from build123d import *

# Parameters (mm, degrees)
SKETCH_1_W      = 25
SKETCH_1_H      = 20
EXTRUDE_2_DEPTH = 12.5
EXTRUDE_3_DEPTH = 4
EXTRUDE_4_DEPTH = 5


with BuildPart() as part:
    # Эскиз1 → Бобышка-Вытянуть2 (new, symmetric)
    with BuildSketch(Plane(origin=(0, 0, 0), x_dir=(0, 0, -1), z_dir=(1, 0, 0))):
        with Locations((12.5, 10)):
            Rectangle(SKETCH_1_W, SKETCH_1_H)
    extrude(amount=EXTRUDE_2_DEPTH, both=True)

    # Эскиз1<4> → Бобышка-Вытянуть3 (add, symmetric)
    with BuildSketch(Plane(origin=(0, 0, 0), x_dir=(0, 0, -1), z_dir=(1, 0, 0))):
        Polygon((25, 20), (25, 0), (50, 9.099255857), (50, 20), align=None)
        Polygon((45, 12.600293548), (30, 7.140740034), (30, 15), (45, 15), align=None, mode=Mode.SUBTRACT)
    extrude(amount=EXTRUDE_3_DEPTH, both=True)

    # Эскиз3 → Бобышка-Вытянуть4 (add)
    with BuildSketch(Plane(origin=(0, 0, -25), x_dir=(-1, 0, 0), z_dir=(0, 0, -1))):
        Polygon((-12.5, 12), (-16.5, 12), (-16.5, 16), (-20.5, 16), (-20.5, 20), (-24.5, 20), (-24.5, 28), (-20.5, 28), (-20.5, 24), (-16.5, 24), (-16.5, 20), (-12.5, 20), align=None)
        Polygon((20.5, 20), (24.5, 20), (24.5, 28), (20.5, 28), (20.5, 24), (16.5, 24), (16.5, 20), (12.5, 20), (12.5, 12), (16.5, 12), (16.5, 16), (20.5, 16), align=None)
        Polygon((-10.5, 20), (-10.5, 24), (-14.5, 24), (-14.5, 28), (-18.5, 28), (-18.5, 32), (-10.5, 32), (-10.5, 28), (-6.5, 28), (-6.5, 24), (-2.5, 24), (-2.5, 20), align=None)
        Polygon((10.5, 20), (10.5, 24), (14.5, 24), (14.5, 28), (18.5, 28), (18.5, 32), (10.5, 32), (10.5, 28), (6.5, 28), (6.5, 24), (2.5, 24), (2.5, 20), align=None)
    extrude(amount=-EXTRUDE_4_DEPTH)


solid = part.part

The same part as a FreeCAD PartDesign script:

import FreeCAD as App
import Part
import Sketcher
from FreeCAD import Vector
Q = App.Units.Quantity

doc = App.newDocument("Part")
body = doc.addObject("PartDesign::Body", "Body")

# Sketch on YZ plane
sketch1 = body.newObject("Sketcher::SketchObject", "Sketch")
sketch1.AttachmentSupport = (doc.getObject("YZ_Plane"), [""])
sketch1.MapMode = "FlatFace"
sketch1.addGeometry(Part.LineSegment(Vector(20, 0, 0), Vector(0, 0, 0)), False)
sketch1.addGeometry(Part.LineSegment(Vector(0, 0, 0), Vector(0, -25, 0)), False)
sketch1.addGeometry(Part.LineSegment(Vector(0, -25, 0), Vector(20, -25, 0)), False)
sketch1.addGeometry(Part.LineSegment(Vector(20, -25, 0), Vector(20, 0, 0)), False)
sketch1.addConstraint(Sketcher.Constraint("Coincident", 0, 2, 1, 1))
sketch1.addConstraint(Sketcher.Constraint("Coincident", 1, 2, 2, 1))
sketch1.addConstraint(Sketcher.Constraint("Coincident", 2, 2, 3, 1))
sketch1.addConstraint(Sketcher.Constraint("Coincident", 3, 2, 0, 1))
sketch1.addConstraint(Sketcher.Constraint("Horizontal", 0))
sketch1.addConstraint(Sketcher.Constraint("Vertical", 1))
sketch1.addConstraint(Sketcher.Constraint("Horizontal", 2))
sketch1.addConstraint(Sketcher.Constraint("Vertical", 3))
sketch1.addConstraint(Sketcher.Constraint("Coincident", 0, 2, -1, 1))
sketch1.addConstraint(Sketcher.Constraint("DistanceX", 0, 2, 0, 1, Q("20 mm")))
sketch1.addConstraint(Sketcher.Constraint("DistanceY", 1, 2, 1, 1, Q("25 mm")))
pad1 = body.newObject("PartDesign::Pad", "Pad")
pad1.Profile = sketch1
pad1.Length = 25
pad1.Midplane = True

# Sketch on YZ plane
sketch2 = body.newObject("Sketcher::SketchObject", "Sketch001")
sketch2.AttachmentSupport = (doc.getObject("YZ_Plane"), [""])
sketch2.MapMode = "FlatFace"
sketch2.addGeometry(Part.LineSegment(Vector(20, -25, 0), Vector(0, -25, 0)), False)
sketch2.addGeometry(Part.LineSegment(Vector(0, -25, 0), Vector(9.099256, -50, 0)), False)
sketch2.addGeometry(Part.LineSegment(Vector(9.099256, -50, 0), Vector(20, -50, 0)), False)
sketch2.addGeometry(Part.LineSegment(Vector(20, -50, 0), Vector(20, -25, 0)), False)
sketch2.addGeometry(Part.LineSegment(Vector(15, -45, 0), Vector(12.600294, -45, 0)), False)
sketch2.addGeometry(Part.LineSegment(Vector(12.600294, -45, 0), Vector(7.14074, -30, 0)), False)
sketch2.addGeometry(Part.LineSegment(Vector(7.14074, -30, 0), Vector(15, -30, 0)), False)
sketch2.addGeometry(Part.LineSegment(Vector(15, -30, 0), Vector(15, -45, 0)), False)
sketch2.addConstraint(Sketcher.Constraint("Coincident", 0, 2, 1, 1))
sketch2.addConstraint(Sketcher.Constraint("Coincident", 1, 2, 2, 1))
sketch2.addConstraint(Sketcher.Constraint("Coincident", 2, 2, 3, 1))
sketch2.addConstraint(Sketcher.Constraint("Coincident", 3, 2, 0, 1))
sketch2.addConstraint(Sketcher.Constraint("Coincident", 4, 2, 5, 1))
sketch2.addConstraint(Sketcher.Constraint("Coincident", 5, 2, 6, 1))
sketch2.addConstraint(Sketcher.Constraint("Coincident", 6, 2, 7, 1))
sketch2.addConstraint(Sketcher.Constraint("Coincident", 7, 2, 4, 1))
sketch2.addConstraint(Sketcher.Constraint("Horizontal", 0))
sketch2.addConstraint(Sketcher.Constraint("Horizontal", 2))
sketch2.addConstraint(Sketcher.Constraint("Vertical", 3))
sketch2.addConstraint(Sketcher.Constraint("Horizontal", 4))
sketch2.addConstraint(Sketcher.Constraint("Horizontal", 6))
sketch2.addConstraint(Sketcher.Constraint("Vertical", 7))
sketch2.addConstraint(Sketcher.Constraint("PointOnObject", 0, 2, -2))
sketch2.addConstraint(Sketcher.Constraint("Parallel", 1, 5))
sketch2.addConstraint(Sketcher.Constraint("DistanceX", 0, 2, 0, 1, Q("20 mm")))
sketch2.addConstraint(Sketcher.Constraint("DistanceY", 3, 1, 3, 2, Q("25 mm")))
sketch2.addConstraint(Sketcher.Constraint("DistanceY", 7, 2, 7, 1, Q("15 mm")))
sketch2.addConstraint(Sketcher.Constraint("Angle", 1, Q("-70 deg")))
sketch2.addConstraint(Sketcher.Constraint("DistanceY", 0, 2, -1, 1, Q("25 mm")))
sketch2.addConstraint(Sketcher.Constraint("DistanceY", 4, 2, -1, 1, Q("45 mm")))
sketch2.addConstraint(Sketcher.Constraint("DistanceX", -1, 1, 6, 2, Q("15 mm")))
sketch2.addConstraint(Sketcher.Constraint("DistanceX", 6, 1, 6, 2, Q("7.85926 mm")))
pad2 = body.newObject("PartDesign::Pad", "Pad001")
pad2.Profile = sketch2
pad2.Length = 8
pad2.Midplane = True

# Sketch on XY plane
sketch3 = body.newObject("Sketcher::SketchObject", "Sketch002")
sketch3.AttachmentSupport = (doc.getObject("XY_Plane"), [""])
sketch3.MapMode = "FlatFace"
sketch3.AttachmentOffset = App.Placement(Vector(0, 0, -25), App.Rotation())
sketch3.addGeometry(Part.LineSegment(Vector(16.5, 12, 0), Vector(12.5, 12, 0)), False)
sketch3.addGeometry(Part.LineSegment(Vector(12.5, 12, 0), Vector(12.5, 20, 0)), False)
sketch3.addGeometry(Part.LineSegment(Vector(12.5, 20, 0), Vector(16.5, 20, 0)), False)
sketch3.addGeometry(Part.LineSegment(Vector(16.5, 20, 0), Vector(16.5, 24, 0)), False)
sketch3.addGeometry(Part.LineSegment(Vector(16.5, 24, 0), Vector(20.5, 24, 0)), False)
sketch3.addGeometry(Part.LineSegment(Vector(20.5, 24, 0), Vector(20.5, 28, 0)), False)
sketch3.addGeometry(Part.LineSegment(Vector(20.5, 28, 0), Vector(24.5, 28, 0)), False)
sketch3.addGeometry(Part.LineSegment(Vector(24.5, 28, 0), Vector(24.5, 20, 0)), False)
sketch3.addGeometry(Part.LineSegment(Vector(24.5, 20, 0), Vector(20.5, 20, 0)), False)
sketch3.addGeometry(Part.LineSegment(Vector(20.5, 20, 0), Vector(20.5, 16, 0)), False)
sketch3.addGeometry(Part.LineSegment(Vector(20.5, 16, 0), Vector(16.5, 16, 0)), False)
sketch3.addGeometry(Part.LineSegment(Vector(16.5, 16, 0), Vector(16.5, 12, 0)), False)
sketch3.addGeometry(Part.LineSegment(Vector(-20.5, 20, 0), Vector(-24.5, 20, 0)), False)
sketch3.addGeometry(Part.LineSegment(Vector(-24.5, 20, 0), Vector(-24.5, 28, 0)), False)
sketch3.addGeometry(Part.LineSegment(Vector(-24.5, 28, 0), Vector(-20.5, 28, 0)), False)
sketch3.addGeometry(Part.LineSegment(Vector(-20.5, 28, 0), Vector(-20.5, 24, 0)), False)
sketch3.addGeometry(Part.LineSegment(Vector(-20.5, 24, 0), Vector(-16.5, 24, 0)), False)
sketch3.addGeometry(Part.LineSegment(Vector(-16.5, 24, 0), Vector(-16.5, 20, 0)), False)
sketch3.addGeometry(Part.LineSegment(Vector(-16.5, 20, 0), Vector(-12.5, 20, 0)), False)
sketch3.addGeometry(Part.LineSegment(Vector(-12.5, 20, 0), Vector(-12.5, 12, 0)), False)
sketch3.addGeometry(Part.LineSegment(Vector(-12.5, 12, 0), Vector(-16.5, 12, 0)), False)
sketch3.addGeometry(Part.LineSegment(Vector(-16.5, 12, 0), Vector(-16.5, 16, 0)), False)
sketch3.addGeometry(Part.LineSegment(Vector(-16.5, 16, 0), Vector(-20.5, 16, 0)), False)
sketch3.addGeometry(Part.LineSegment(Vector(-20.5, 16, 0), Vector(-20.5, 20, 0)), False)
sketch3.addGeometry(Part.LineSegment(Vector(10.5, 24, 0), Vector(10.5, 20, 0)), False)
sketch3.addGeometry(Part.LineSegment(Vector(10.5, 20, 0), Vector(2.5, 20, 0)), False)
sketch3.addGeometry(Part.LineSegment(Vector(2.5, 20, 0), Vector(2.5, 24, 0)), False)
sketch3.addGeometry(Part.LineSegment(Vector(2.5, 24, 0), Vector(6.5, 24, 0)), False)
sketch3.addGeometry(Part.LineSegment(Vector(6.5, 24, 0), Vector(6.5, 28, 0)), False)
sketch3.addGeometry(Part.LineSegment(Vector(6.5, 28, 0), Vector(10.5, 28, 0)), False)
sketch3.addGeometry(Part.LineSegment(Vector(10.5, 28, 0), Vector(10.5, 32, 0)), False)
sketch3.addGeometry(Part.LineSegment(Vector(10.5, 32, 0), Vector(18.5, 32, 0)), False)
sketch3.addGeometry(Part.LineSegment(Vector(18.5, 32, 0), Vector(18.5, 28, 0)), False)
sketch3.addGeometry(Part.LineSegment(Vector(18.5, 28, 0), Vector(14.5, 28, 0)), False)
sketch3.addGeometry(Part.LineSegment(Vector(14.5, 28, 0), Vector(14.5, 24, 0)), False)
sketch3.addGeometry(Part.LineSegment(Vector(14.5, 24, 0), Vector(10.5, 24, 0)), False)
sketch3.addGeometry(Part.LineSegment(Vector(-10.5, 20, 0), Vector(-10.5, 24, 0)), False)
sketch3.addGeometry(Part.LineSegment(Vector(-10.5, 24, 0), Vector(-14.5, 24, 0)), False)
sketch3.addGeometry(Part.LineSegment(Vector(-14.5, 24, 0), Vector(-14.5, 28, 0)), False)
sketch3.addGeometry(Part.LineSegment(Vector(-14.5, 28, 0), Vector(-18.5, 28, 0)), False)
sketch3.addGeometry(Part.LineSegment(Vector(-18.5, 28, 0), Vector(-18.5, 32, 0)), False)
sketch3.addGeometry(Part.LineSegment(Vector(-18.5, 32, 0), Vector(-10.5, 32, 0)), False)
sketch3.addGeometry(Part.LineSegment(Vector(-10.5, 32, 0), Vector(-10.5, 28, 0)), False)
sketch3.addGeometry(Part.LineSegment(Vector(-10.5, 28, 0), Vector(-6.5, 28, 0)), False)
sketch3.addGeometry(Part.LineSegment(Vector(-6.5, 28, 0), Vector(-6.5, 24, 0)), False)
sketch3.addGeometry(Part.LineSegment(Vector(-6.5, 24, 0), Vector(-2.5, 24, 0)), False)
sketch3.addGeometry(Part.LineSegment(Vector(-2.5, 24, 0), Vector(-2.5, 20, 0)), False)
sketch3.addGeometry(Part.LineSegment(Vector(-2.5, 20, 0), Vector(-10.5, 20, 0)), False)
sketch3.addConstraint(Sketcher.Constraint("Coincident", 0, 2, 1, 1))
sketch3.addConstraint(Sketcher.Constraint("Coincident", 1, 2, 2, 1))
sketch3.addConstraint(Sketcher.Constraint("Coincident", 2, 2, 3, 1))
sketch3.addConstraint(Sketcher.Constraint("Coincident", 3, 2, 4, 1))
sketch3.addConstraint(Sketcher.Constraint("Coincident", 4, 2, 5, 1))
sketch3.addConstraint(Sketcher.Constraint("Coincident", 5, 2, 6, 1))
sketch3.addConstraint(Sketcher.Constraint("Coincident", 6, 2, 7, 1))
sketch3.addConstraint(Sketcher.Constraint("Coincident", 7, 2, 8, 1))
sketch3.addConstraint(Sketcher.Constraint("Coincident", 8, 2, 9, 1))
sketch3.addConstraint(Sketcher.Constraint("Coincident", 9, 2, 10, 1))
sketch3.addConstraint(Sketcher.Constraint("Coincident", 10, 2, 11, 1))
sketch3.addConstraint(Sketcher.Constraint("Coincident", 11, 2, 0, 1))
sketch3.addConstraint(Sketcher.Constraint("Coincident", 12, 2, 13, 1))
sketch3.addConstraint(Sketcher.Constraint("Coincident", 13, 2, 14, 1))
sketch3.addConstraint(Sketcher.Constraint("Coincident", 14, 2, 15, 1))
sketch3.addConstraint(Sketcher.Constraint("Coincident", 15, 2, 16, 1))
sketch3.addConstraint(Sketcher.Constraint("Coincident", 16, 2, 17, 1))
sketch3.addConstraint(Sketcher.Constraint("Coincident", 17, 2, 18, 1))
sketch3.addConstraint(Sketcher.Constraint("Coincident", 18, 2, 19, 1))
sketch3.addConstraint(Sketcher.Constraint("Coincident", 19, 2, 20, 1))
sketch3.addConstraint(Sketcher.Constraint("Coincident", 20, 2, 21, 1))
sketch3.addConstraint(Sketcher.Constraint("Coincident", 21, 2, 22, 1))
sketch3.addConstraint(Sketcher.Constraint("Coincident", 22, 2, 23, 1))
sketch3.addConstraint(Sketcher.Constraint("Coincident", 23, 2, 12, 1))
sketch3.addConstraint(Sketcher.Constraint("Coincident", 24, 2, 25, 1))
sketch3.addConstraint(Sketcher.Constraint("Coincident", 25, 2, 26, 1))
sketch3.addConstraint(Sketcher.Constraint("Coincident", 26, 2, 27, 1))
sketch3.addConstraint(Sketcher.Constraint("Coincident", 27, 2, 28, 1))
sketch3.addConstraint(Sketcher.Constraint("Coincident", 28, 2, 29, 1))
sketch3.addConstraint(Sketcher.Constraint("Coincident", 29, 2, 30, 1))
sketch3.addConstraint(Sketcher.Constraint("Coincident", 30, 2, 31, 1))
sketch3.addConstraint(Sketcher.Constraint("Coincident", 31, 2, 32, 1))
sketch3.addConstraint(Sketcher.Constraint("Coincident", 32, 2, 33, 1))
sketch3.addConstraint(Sketcher.Constraint("Coincident", 33, 2, 34, 1))
sketch3.addConstraint(Sketcher.Constraint("Coincident", 34, 2, 35, 1))
sketch3.addConstraint(Sketcher.Constraint("Coincident", 35, 2, 24, 1))
sketch3.addConstraint(Sketcher.Constraint("Coincident", 36, 2, 37, 1))
sketch3.addConstraint(Sketcher.Constraint("Coincident", 37, 2, 38, 1))
sketch3.addConstraint(Sketcher.Constraint("Coincident", 38, 2, 39, 1))
sketch3.addConstraint(Sketcher.Constraint("Coincident", 39, 2, 40, 1))
sketch3.addConstraint(Sketcher.Constraint("Coincident", 40, 2, 41, 1))
sketch3.addConstraint(Sketcher.Constraint("Coincident", 41, 2, 42, 1))
sketch3.addConstraint(Sketcher.Constraint("Coincident", 42, 2, 43, 1))
sketch3.addConstraint(Sketcher.Constraint("Coincident", 43, 2, 44, 1))
sketch3.addConstraint(Sketcher.Constraint("Coincident", 44, 2, 45, 1))
sketch3.addConstraint(Sketcher.Constraint("Coincident", 45, 2, 46, 1))
sketch3.addConstraint(Sketcher.Constraint("Coincident", 46, 2, 47, 1))
sketch3.addConstraint(Sketcher.Constraint("Coincident", 47, 2, 36, 1))
sketch3.addConstraint(Sketcher.Constraint("Horizontal", 0))
sketch3.addConstraint(Sketcher.Constraint("Vertical", 1))
sketch3.addConstraint(Sketcher.Constraint("Horizontal", 2))
sketch3.addConstraint(Sketcher.Constraint("Vertical", 3))
sketch3.addConstraint(Sketcher.Constraint("Horizontal", 4))
sketch3.addConstraint(Sketcher.Constraint("Vertical", 5))
sketch3.addConstraint(Sketcher.Constraint("Horizontal", 6))
sketch3.addConstraint(Sketcher.Constraint("Vertical", 7))
sketch3.addConstraint(Sketcher.Constraint("Horizontal", 8))
sketch3.addConstraint(Sketcher.Constraint("Vertical", 9))
sketch3.addConstraint(Sketcher.Constraint("Horizontal", 10))
sketch3.addConstraint(Sketcher.Constraint("Vertical", 11))
sketch3.addConstraint(Sketcher.Constraint("Horizontal", 12))
sketch3.addConstraint(Sketcher.Constraint("Vertical", 13))
sketch3.addConstraint(Sketcher.Constraint("Horizontal", 14))
sketch3.addConstraint(Sketcher.Constraint("Vertical", 15))
sketch3.addConstraint(Sketcher.Constraint("Horizontal", 16))
sketch3.addConstraint(Sketcher.Constraint("Vertical", 17))
sketch3.addConstraint(Sketcher.Constraint("Horizontal", 18))
sketch3.addConstraint(Sketcher.Constraint("Vertical", 19))
sketch3.addConstraint(Sketcher.Constraint("Horizontal", 20))
sketch3.addConstraint(Sketcher.Constraint("Vertical", 21))
sketch3.addConstraint(Sketcher.Constraint("Horizontal", 22))
sketch3.addConstraint(Sketcher.Constraint("Vertical", 23))
sketch3.addConstraint(Sketcher.Constraint("Vertical", 24))
sketch3.addConstraint(Sketcher.Constraint("Horizontal", 25))
sketch3.addConstraint(Sketcher.Constraint("Vertical", 26))
sketch3.addConstraint(Sketcher.Constraint("Horizontal", 27))
sketch3.addConstraint(Sketcher.Constraint("Vertical", 28))
sketch3.addConstraint(Sketcher.Constraint("Horizontal", 29))
sketch3.addConstraint(Sketcher.Constraint("Vertical", 30))
sketch3.addConstraint(Sketcher.Constraint("Horizontal", 31))
sketch3.addConstraint(Sketcher.Constraint("Vertical", 32))
sketch3.addConstraint(Sketcher.Constraint("Horizontal", 33))
sketch3.addConstraint(Sketcher.Constraint("Vertical", 34))
sketch3.addConstraint(Sketcher.Constraint("Horizontal", 35))
sketch3.addConstraint(Sketcher.Constraint("Vertical", 36))
sketch3.addConstraint(Sketcher.Constraint("Horizontal", 37))
sketch3.addConstraint(Sketcher.Constraint("Vertical", 38))
sketch3.addConstraint(Sketcher.Constraint("Horizontal", 39))
sketch3.addConstraint(Sketcher.Constraint("Vertical", 40))
sketch3.addConstraint(Sketcher.Constraint("Horizontal", 41))
sketch3.addConstraint(Sketcher.Constraint("Vertical", 42))
sketch3.addConstraint(Sketcher.Constraint("Horizontal", 43))
sketch3.addConstraint(Sketcher.Constraint("Vertical", 44))
sketch3.addConstraint(Sketcher.Constraint("Horizontal", 45))
sketch3.addConstraint(Sketcher.Constraint("Vertical", 46))
sketch3.addConstraint(Sketcher.Constraint("Horizontal", 47))
sketch3.addConstraint(Sketcher.Constraint("Symmetric", 7, 2, 12, 2, -2))
sketch3.addConstraint(Sketcher.Constraint("Symmetric", 5, 2, 14, 2, -2))
sketch3.addConstraint(Sketcher.Constraint("Symmetric", 3, 2, 16, 2, -2))
sketch3.addConstraint(Sketcher.Constraint("Symmetric", 1, 2, 18, 2, -2))
sketch3.addConstraint(Sketcher.Constraint("Symmetric", 11, 2, 20, 2, -2))
sketch3.addConstraint(Sketcher.Constraint("Symmetric", 9, 2, 22, 2, -2))
sketch3.addConstraint(Sketcher.Constraint("Symmetric", 35, 2, 36, 2, -2))
sketch3.addConstraint(Sketcher.Constraint("Symmetric", 33, 2, 38, 2, -2))
sketch3.addConstraint(Sketcher.Constraint("Symmetric", 31, 2, 40, 2, -2))
sketch3.addConstraint(Sketcher.Constraint("Symmetric", 29, 2, 42, 2, -2))
sketch3.addConstraint(Sketcher.Constraint("Symmetric", 27, 2, 44, 2, -2))
sketch3.addConstraint(Sketcher.Constraint("Symmetric", 25, 2, 46, 2, -2))
sketch3.addConstraint(Sketcher.Constraint("Horizontal", 2, 2, 7, 2))
sketch3.addConstraint(Sketcher.Constraint("Horizontal", 23, 2, 24, 2))
sketch3.addConstraint(Sketcher.Constraint("Horizontal", 16, 2, 26, 2))
sketch3.addConstraint(Sketcher.Constraint("Horizontal", 14, 2, 28, 2))
sketch3.addConstraint(Sketcher.Constraint("Horizontal", 29, 2, 32, 2))
sketch3.addConstraint(Sketcher.Constraint("Horizontal", 27, 2, 34, 2))
sketch3.addConstraint(Sketcher.Constraint("Vertical", 5, 2, 8, 2))
sketch3.addConstraint(Sketcher.Constraint("Vertical", 3, 2, 10, 2))
sketch3.addConstraint(Sketcher.Constraint("Vertical", 24, 2, 29, 2))
sketch3.addConstraint(Sketcher.Constraint("Equal", 2, 4))
sketch3.addConstraint(Sketcher.Constraint("Equal", 4, 6))
sketch3.addConstraint(Sketcher.Constraint("Equal", 22, 27))
sketch3.addConstraint(Sketcher.Constraint("Equal", 27, 29))
sketch3.addConstraint(Sketcher.Constraint("Equal", 25, 31))
sketch3.addConstraint(Sketcher.Constraint("Equal", 29, 33))
sketch3.addConstraint(Sketcher.Constraint("Equal", 47, 1))
sketch3.addConstraint(Sketcher.Constraint("Equal", 45, 3))
sketch3.addConstraint(Sketcher.Constraint("Equal", 3, 5))
sketch3.addConstraint(Sketcher.Constraint("Equal", 5, 9))
sketch3.addConstraint(Sketcher.Constraint("Equal", 28, 30))
sketch3.addConstraint(Sketcher.Constraint("DistanceX", 0, 2, 0, 1, Q("4 mm")))
sketch3.addConstraint(Sketcher.Constraint("DistanceY", -1, 1, 0, 2, Q("12 mm")))
sketch3.addConstraint(Sketcher.Constraint("DistanceX", 12, 2, 1, 2, Q("37 mm")))
sketch3.addConstraint(Sketcher.Constraint("DistanceX", 24, 2, 1, 2, Q("2 mm")))
pad3 = body.newObject("PartDesign::Pad", "Pad002")
pad3.Profile = sketch3
pad3.Length = 5

doc.recompute()
